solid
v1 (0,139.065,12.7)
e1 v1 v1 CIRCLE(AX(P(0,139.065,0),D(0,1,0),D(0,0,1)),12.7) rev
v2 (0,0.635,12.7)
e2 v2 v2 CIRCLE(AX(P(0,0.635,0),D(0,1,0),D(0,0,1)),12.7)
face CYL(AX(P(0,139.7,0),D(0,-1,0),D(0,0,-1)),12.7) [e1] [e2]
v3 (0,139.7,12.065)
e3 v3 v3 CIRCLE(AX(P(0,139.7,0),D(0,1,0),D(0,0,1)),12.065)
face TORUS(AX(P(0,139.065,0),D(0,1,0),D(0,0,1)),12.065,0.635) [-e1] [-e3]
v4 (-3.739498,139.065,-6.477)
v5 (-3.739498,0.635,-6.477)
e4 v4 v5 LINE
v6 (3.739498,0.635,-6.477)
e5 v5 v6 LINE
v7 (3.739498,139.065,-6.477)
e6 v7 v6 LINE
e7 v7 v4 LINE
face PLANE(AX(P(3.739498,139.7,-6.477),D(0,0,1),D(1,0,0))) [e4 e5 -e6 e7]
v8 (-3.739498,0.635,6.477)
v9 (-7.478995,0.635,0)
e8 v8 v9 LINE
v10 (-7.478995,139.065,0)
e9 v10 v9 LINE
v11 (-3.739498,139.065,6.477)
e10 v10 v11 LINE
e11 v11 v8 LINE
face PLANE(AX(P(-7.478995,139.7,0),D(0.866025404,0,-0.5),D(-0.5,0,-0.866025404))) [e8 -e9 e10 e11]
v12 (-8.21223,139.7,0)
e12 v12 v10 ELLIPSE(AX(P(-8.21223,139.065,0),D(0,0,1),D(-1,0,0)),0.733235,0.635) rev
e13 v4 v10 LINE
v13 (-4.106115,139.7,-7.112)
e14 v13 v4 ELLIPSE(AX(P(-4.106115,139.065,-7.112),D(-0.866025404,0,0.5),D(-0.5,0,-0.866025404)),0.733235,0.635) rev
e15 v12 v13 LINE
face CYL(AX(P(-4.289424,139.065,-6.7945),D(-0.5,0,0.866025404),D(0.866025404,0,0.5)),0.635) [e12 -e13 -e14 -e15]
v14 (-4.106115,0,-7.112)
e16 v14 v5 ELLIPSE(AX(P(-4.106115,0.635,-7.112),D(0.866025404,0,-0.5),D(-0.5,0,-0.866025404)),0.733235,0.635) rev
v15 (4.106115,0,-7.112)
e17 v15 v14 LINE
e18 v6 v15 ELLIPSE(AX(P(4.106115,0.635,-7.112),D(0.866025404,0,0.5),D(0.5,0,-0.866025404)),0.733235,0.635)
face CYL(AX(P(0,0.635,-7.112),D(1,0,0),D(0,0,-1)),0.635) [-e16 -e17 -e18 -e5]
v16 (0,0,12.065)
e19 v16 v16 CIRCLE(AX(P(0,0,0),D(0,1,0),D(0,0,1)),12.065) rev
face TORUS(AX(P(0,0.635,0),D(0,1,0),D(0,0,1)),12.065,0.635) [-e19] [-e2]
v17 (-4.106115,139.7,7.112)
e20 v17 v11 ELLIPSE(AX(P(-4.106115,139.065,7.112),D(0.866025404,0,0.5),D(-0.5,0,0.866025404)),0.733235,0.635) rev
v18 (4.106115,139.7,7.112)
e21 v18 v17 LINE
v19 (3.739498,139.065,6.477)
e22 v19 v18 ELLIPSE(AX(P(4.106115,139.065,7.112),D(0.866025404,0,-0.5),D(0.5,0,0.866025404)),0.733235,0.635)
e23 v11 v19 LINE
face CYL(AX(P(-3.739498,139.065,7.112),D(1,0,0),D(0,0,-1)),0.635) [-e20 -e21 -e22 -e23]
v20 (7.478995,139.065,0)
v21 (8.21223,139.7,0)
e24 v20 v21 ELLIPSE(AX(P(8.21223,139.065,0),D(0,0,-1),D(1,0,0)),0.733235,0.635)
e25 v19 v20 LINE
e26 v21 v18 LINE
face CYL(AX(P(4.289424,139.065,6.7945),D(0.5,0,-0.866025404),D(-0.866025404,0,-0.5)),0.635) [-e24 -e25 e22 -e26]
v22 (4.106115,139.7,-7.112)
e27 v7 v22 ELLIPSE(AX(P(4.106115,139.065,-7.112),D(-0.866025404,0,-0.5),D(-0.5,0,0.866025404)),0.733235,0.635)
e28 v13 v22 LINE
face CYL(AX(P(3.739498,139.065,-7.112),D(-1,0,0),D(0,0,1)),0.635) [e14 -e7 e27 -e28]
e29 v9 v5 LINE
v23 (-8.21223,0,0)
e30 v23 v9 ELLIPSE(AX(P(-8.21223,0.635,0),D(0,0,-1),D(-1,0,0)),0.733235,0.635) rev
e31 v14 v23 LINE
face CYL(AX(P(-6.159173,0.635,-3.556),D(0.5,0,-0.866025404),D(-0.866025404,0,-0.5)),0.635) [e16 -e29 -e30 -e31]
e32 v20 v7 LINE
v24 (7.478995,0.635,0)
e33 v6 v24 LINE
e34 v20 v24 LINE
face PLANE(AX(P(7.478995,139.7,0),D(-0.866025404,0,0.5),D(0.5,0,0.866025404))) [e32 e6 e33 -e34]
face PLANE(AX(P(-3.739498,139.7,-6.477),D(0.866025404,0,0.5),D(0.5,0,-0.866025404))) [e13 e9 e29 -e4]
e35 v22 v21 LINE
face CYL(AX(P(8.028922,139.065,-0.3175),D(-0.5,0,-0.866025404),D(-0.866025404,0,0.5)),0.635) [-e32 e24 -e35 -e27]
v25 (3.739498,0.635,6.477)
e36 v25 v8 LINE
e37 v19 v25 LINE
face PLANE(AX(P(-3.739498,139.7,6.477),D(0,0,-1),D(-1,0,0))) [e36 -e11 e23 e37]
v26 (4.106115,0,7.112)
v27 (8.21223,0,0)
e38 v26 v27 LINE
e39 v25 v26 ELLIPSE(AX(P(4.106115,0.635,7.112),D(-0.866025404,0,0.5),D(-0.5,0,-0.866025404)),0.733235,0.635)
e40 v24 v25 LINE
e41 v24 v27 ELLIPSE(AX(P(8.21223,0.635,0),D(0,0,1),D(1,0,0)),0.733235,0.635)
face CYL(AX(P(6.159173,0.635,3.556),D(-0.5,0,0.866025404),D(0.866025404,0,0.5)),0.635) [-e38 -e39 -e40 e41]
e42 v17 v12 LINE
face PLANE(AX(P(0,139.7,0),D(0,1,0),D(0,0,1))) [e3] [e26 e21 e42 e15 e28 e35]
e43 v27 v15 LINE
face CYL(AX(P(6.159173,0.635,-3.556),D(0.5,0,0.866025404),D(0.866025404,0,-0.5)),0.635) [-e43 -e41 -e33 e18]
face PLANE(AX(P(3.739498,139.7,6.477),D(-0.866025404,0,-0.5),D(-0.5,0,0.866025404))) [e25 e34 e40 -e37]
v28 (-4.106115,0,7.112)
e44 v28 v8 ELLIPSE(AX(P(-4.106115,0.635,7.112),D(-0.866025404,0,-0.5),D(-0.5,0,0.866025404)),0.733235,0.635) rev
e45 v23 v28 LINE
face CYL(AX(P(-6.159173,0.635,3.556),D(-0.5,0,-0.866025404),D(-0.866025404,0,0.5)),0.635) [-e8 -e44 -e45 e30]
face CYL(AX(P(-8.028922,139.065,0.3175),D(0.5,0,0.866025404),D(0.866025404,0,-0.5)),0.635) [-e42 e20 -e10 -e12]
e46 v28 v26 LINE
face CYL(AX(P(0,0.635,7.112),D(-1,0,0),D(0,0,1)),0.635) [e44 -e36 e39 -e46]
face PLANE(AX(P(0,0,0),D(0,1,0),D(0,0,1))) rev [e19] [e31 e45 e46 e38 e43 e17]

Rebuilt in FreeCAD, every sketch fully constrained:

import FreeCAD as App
import Part
import Sketcher

V = App.Vector
Q = App.Units.Quantity


def edges_at(feature, points):
    """Names of the edges that pass closest to the given points."""
    edges = feature.Shape.Edges
    near = lambda p: min(range(len(edges)), key=lambda i: edges[i].distToShape(Part.Vertex(*p))[0])
    return sorted({f"Edge{near(p) + 1}" for p in points})


def add_polygon(sketch, points):
    """Adds a closed chain of lines whose ends are joined by coincident constraints."""
    first, n = sketch.GeometryCount, len(points)
    for a, b in zip(points, points[1:] + points[:1]):
        sketch.addGeometry(Part.LineSegment(App.Vector(*a, 0), App.Vector(*b, 0)), False)
    for i in range(n):
        sketch.addConstraint(Sketcher.Constraint("Coincident", first + i, 2, first + (i + 1) % n, 1))

doc = App.newDocument("Part")
body = doc.addObject("PartDesign::Body", "Body")

# Sketch on XZ plane
sketch1 = body.newObject("Sketcher::SketchObject", "Sketch")
sketch1.AttachmentSupport = (doc.getObject("XZ_Plane"), [""])
sketch1.MapMode = "FlatFace"
sketch1.addGeometry(Part.Circle(V(0, 0, 0), V(0, 0, 1), 13), False)  # 0
add_polygon(sketch1, [(4, -6), (7, 0), (4, 6), (-4, 6), (-7, 0), (-4, -6)])  # lines 1-6
sketch1.addConstraint(Sketcher.Constraint("Horizontal", 3))
sketch1.addConstraint(Sketcher.Constraint("Horizontal", 6))
sketch1.addConstraint(Sketcher.Constraint("Coincident", 0, 3, -1, 1))
sketch1.addConstraint(Sketcher.Constraint("Symmetric", 1, 2, 4, 2, -1, 1))
sketch1.addConstraint(Sketcher.Constraint("Symmetric", 2, 2, 5, 2, -1, 1))
sketch1.addConstraint(Sketcher.Constraint("PointOnObject", 1, 2, -1))
sketch1.addConstraint(Sketcher.Constraint("Parallel", 1, 4))
sketch1.addConstraint(Sketcher.Constraint("Vertical", 3, 2, 5, 2))
sketch1.addConstraint(Sketcher.Constraint("Diameter", 0, Q("1 in")))
sketch1.addConstraint(Sketcher.Constraint("Angle", 1, Q("60 deg")))
sketch1.addConstraint(Sketcher.Constraint("DistanceY", 5, 2, 3, 2, Q("0.51 in")))
sketch1.addConstraint(Sketcher.Constraint("DistanceX", 3, 2, 3, 1, 7.478995))
pad1 = body.newObject("PartDesign::Pad", "Pad")
pad1.Profile = sketch1
pad1.Length = Q("5.5 in")
pad1.Reversed = True
doc.recompute()

fillet = body.newObject("PartDesign::Fillet", "Fillet")
fillet.Base = (pad1, edges_at(pad1, [
    (0, 0, -6.477),
    (-5.609, 0, -3.239),
    (-5.609, 0, 3.239),
    (0, 0, 6.477),
    (5.609, 139.7, 3.239),
    (5.609, 139.7, -3.239),
    (0, 139.7, -6.477),
    (-5.609, 139.7, -3.239),
    (-5.609, 139.7, 3.239),
    (0, 139.7, 6.477),
    (0, 0, -12.7),
    (0, 139.7, -12.7),
    (5.609, 0, 3.239),
    (5.609, 0, -3.239),
]))
fillet.Radius = Q("0.025 in")

doc.recompute()
